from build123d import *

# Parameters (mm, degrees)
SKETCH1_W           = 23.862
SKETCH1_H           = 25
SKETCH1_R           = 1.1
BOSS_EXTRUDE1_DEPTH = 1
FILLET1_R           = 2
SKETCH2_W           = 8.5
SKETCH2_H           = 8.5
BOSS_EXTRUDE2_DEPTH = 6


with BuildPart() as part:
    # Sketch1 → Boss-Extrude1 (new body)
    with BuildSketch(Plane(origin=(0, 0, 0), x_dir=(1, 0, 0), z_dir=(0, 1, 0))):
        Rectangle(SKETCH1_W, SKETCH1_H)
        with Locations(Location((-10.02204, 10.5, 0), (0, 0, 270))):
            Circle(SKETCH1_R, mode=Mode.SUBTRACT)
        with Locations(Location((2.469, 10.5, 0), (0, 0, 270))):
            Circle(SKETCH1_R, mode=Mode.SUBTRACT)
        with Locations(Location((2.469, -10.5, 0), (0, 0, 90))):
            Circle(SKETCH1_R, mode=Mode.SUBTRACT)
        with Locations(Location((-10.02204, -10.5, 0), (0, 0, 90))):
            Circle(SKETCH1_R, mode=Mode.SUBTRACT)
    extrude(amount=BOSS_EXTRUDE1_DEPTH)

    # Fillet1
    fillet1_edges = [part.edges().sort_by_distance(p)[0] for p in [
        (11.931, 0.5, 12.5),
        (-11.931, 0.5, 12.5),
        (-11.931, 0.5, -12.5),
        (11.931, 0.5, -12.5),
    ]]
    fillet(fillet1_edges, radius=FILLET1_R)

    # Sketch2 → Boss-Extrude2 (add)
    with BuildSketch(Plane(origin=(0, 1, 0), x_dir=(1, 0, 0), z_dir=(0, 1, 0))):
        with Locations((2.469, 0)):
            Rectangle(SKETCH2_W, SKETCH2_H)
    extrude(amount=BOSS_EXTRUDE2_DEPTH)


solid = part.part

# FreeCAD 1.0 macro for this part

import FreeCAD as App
import Part
import Sketcher
from FreeCAD import Vector
Q = App.Units.Quantity


def edges_at(feature, points):
    """Names of the edges that pass closest to the given points."""
    edges = feature.Shape.Edges
    near = lambda p: min(range(len(edges)), key=lambda i: edges[i].distToShape(Part.Vertex(*p))[0])
    return sorted({f"Edge{near(p) + 1}" for p in points})

doc = App.newDocument("Part")
params = doc.addObject("Spreadsheet::Sheet", "Params")
for row, (alias, value) in enumerate([
    ("sketch1_diameter", "2.2 mm"),
    ("sketch1_height", "25 mm"),
    ("pad1_length", "1 mm"),
    ("fillet_radius", "2 mm"),
    ("sketch2_width", "8.5 mm"),
    ("pad2_length", "6 mm"),
], start=1):
    params.set(f"A{row}", alias)
    params.set(f"B{row}", "=" + value)
    params.setAlias(f"B{row}", alias)

body = doc.addObject("PartDesign::Body", "Body")

# Sketch on XZ plane
sketch1 = body.newObject("Sketcher::SketchObject", "Sketch")
sketch1.AttachmentSupport = (doc.getObject("XZ_Plane"), [""])
sketch1.MapMode = "FlatFace"
sketch1.addGeometry([
    Part.LineSegment(Vector(-11.931, -12.5, 0), Vector(-11.931, 12.5, 0)),  # 0
    Part.LineSegment(Vector(-11.931, 12.5, 0), Vector(11.931, 12.5, 0)),  # 1
    Part.LineSegment(Vector(11.931, 12.5, 0), Vector(11.931, -12.5, 0)),  # 2
    Part.LineSegment(Vector(11.931, -12.5, 0), Vector(-11.931, -12.5, 0)),  # 3
    Part.Circle(Vector(-10.02204, 10.5, 0), Vector(0, 0, 1), 1.1),  # 4
    Part.Circle(Vector(2.469, 10.5, 0), Vector(0, 0, 1), 1.1),  # 5
    Part.Circle(Vector(-10.02204, -10.5, 0), Vector(0, 0, 1), 1.1),  # 6
    Part.Circle(Vector(2.469, -10.5, 0), Vector(0, 0, 1), 1.1),  # 7
], False)
sketch1.addConstraint([
    Sketcher.Constraint("Coincident", 0, 2, 1, 1),
    Sketcher.Constraint("Coincident", 1, 2, 2, 1),
    Sketcher.Constraint("Coincident", 2, 2, 3, 1),
    Sketcher.Constraint("Coincident", 3, 2, 0, 1),
    Sketcher.Constraint("Vertical", 0),
    Sketcher.Constraint("Horizontal", 1),
    Sketcher.Constraint("Vertical", 2),
    Sketcher.Constraint("Horizontal", 3),
    Sketcher.Constraint("Equal", 4, 5),
    Sketcher.Constraint("Equal", 5, 6),
    Sketcher.Constraint("Equal", 6, 7),
    Sketcher.Constraint("Symmetric", 0, 2, 2, 2, -1, 1),
    Sketcher.Constraint("Symmetric", 4, 3, 6, 3, -1),
    Sketcher.Constraint("Symmetric", 5, 3, 7, 3, -1),
    Sketcher.Constraint("Horizontal", 4, 3, 5, 3),
    Sketcher.Constraint("Diameter", 4, Q("2.2 mm")),
    Sketcher.Constraint("DistanceY", 0, 1, 0, 2, Q("25 mm")),
    Sketcher.Constraint("DistanceY", 6, 3, 4, 3, Q("21 mm")),
    Sketcher.Constraint("DistanceX", 0, 2, 5, 3, Q("14.4 mm")),
    Sketcher.Constraint("DistanceX", 1, 1, 1, 2, Q("23.862 mm")),
    Sketcher.Constraint("DistanceX", 4, 3, -1, 1, Q("10.02204 mm")),
])
sketch1.setExpression("Constraints[15]", "Params.sketch1_diameter")
sketch1.setExpression("Constraints[16]", "Params.sketch1_height")
pad1 = body.newObject("PartDesign::Pad", "Pad")
pad1.Profile = sketch1
pad1.setExpression("Length", "Params.pad1_length")
pad1.Reversed = True
doc.recompute()

fillet = body.newObject("PartDesign::Fillet", "Fillet")
fillet.Base = (pad1, edges_at(pad1, [
    (11.931, 0.5, 12.5),
    (-11.931, 0.5, 12.5),
    (-11.931, 0.5, -12.5),
    (11.931, 0.5, -12.5),
]))
fillet.setExpression("Radius", "Params.fillet_radius")

# Sketch on XZ plane
sketch2 = body.newObject("Sketcher::SketchObject", "Sketch001")
sketch2.AttachmentSupport = (doc.getObject("XZ_Plane"), [""])
sketch2.MapMode = "FlatFace"
sketch2.AttachmentOffset = App.Placement(Vector(0, 0, -1), App.Rotation())
sketch2.addGeometry([
    Part.LineSegment(Vector(-1.781, -4.25, 0), Vector(-1.781, 4.25, 0)),
    Part.LineSegment(Vector(-1.781, 4.25, 0), Vector(6.719, 4.25, 0)),
    Part.LineSegment(Vector(6.719, 4.25, 0), Vector(6.719, -4.25, 0)),
    Part.LineSegment(Vector(6.719, -4.25, 0), Vector(-1.781, -4.25, 0)),
], False)
sketch2.addConstraint([
    Sketcher.Constraint("Coincident", 0, 2, 1, 1),
    Sketcher.Constraint("Coincident", 1, 2, 2, 1),
    Sketcher.Constraint("Coincident", 2, 2, 3, 1),
    Sketcher.Constraint("Coincident", 3, 2, 0, 1),
    Sketcher.Constraint("Vertical", 0),
    Sketcher.Constraint("Horizontal", 1),
    Sketcher.Constraint("Vertical", 2),
    Sketcher.Constraint("Horizontal", 3),
    Sketcher.Constraint("Equal", 3, 0),
    Sketcher.Constraint("DistanceX", 1, 1, 1, 2, Q("8.5 mm")),
    Sketcher.Constraint("DistanceY", -1, 1, 0, 2, Q("4.25 mm")),
    Sketcher.Constraint("DistanceX", 0, 2, -1, 1, Q("1.781 mm")),
])
sketch2.setExpression("Constraints[9]", "Params.sketch2_width")
pad2 = body.newObject("PartDesign::Pad", "Pad001")
pad2.Profile = sketch2
pad2.setExpression("Length", "Params.pad2_length")
pad2.Reversed = True

doc.recompute()
